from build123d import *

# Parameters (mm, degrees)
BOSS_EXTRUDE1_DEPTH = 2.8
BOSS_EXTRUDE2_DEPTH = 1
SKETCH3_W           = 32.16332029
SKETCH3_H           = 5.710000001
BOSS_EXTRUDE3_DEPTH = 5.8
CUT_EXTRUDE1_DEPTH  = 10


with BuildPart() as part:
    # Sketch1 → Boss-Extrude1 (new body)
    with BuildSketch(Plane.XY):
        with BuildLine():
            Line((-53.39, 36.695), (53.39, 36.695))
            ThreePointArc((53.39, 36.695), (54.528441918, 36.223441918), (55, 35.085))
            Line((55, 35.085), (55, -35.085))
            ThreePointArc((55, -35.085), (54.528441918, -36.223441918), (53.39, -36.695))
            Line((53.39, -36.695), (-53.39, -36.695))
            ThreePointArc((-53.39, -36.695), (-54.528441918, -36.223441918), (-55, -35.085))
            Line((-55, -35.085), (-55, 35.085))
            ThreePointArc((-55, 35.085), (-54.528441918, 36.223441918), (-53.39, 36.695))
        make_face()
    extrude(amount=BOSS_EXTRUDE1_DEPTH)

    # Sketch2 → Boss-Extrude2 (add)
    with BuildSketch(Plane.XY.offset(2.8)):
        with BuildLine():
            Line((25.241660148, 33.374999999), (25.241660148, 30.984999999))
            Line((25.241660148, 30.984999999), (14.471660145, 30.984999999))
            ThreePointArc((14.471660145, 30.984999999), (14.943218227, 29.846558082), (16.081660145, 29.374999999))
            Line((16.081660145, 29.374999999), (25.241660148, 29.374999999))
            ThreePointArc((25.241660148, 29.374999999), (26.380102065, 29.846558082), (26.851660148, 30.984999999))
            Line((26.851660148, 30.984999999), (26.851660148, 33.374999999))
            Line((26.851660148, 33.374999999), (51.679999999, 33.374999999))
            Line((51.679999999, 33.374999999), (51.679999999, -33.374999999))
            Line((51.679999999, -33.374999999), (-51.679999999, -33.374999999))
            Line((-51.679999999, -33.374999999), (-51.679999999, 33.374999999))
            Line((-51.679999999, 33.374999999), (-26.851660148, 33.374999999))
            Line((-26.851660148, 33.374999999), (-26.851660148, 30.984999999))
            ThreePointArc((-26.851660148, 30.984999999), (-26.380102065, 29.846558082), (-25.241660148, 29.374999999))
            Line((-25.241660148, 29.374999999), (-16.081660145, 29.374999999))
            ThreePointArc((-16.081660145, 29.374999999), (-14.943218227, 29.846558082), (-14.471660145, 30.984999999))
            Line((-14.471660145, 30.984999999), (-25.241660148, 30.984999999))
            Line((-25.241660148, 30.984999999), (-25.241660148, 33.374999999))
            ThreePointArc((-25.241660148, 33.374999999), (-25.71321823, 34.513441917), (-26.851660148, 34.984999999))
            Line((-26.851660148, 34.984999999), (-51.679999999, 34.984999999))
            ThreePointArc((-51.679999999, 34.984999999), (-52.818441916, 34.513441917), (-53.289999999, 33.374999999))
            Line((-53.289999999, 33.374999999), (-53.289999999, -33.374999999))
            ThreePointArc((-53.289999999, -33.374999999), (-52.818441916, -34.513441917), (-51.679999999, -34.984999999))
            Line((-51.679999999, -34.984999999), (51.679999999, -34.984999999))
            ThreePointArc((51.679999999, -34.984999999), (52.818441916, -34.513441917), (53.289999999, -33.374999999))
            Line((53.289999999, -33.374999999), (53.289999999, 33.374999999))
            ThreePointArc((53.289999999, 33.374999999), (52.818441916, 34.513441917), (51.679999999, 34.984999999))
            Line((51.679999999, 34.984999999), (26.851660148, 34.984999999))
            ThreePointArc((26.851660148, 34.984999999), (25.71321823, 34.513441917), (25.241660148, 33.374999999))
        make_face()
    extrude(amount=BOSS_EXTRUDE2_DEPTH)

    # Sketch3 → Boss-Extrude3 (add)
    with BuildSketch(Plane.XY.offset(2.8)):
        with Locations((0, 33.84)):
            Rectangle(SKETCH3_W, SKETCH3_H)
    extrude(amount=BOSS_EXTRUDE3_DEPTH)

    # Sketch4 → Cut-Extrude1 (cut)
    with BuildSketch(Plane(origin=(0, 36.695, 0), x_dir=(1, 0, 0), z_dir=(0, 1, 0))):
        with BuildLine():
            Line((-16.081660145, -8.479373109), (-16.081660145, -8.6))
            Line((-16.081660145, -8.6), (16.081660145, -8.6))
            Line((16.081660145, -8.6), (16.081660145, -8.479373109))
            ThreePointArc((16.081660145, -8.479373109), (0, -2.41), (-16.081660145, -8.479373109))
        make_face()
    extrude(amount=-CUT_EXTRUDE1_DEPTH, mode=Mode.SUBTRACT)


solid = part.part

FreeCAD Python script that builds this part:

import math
import FreeCAD as App
import Part
import Sketcher
from FreeCAD import Vector


def add_polygon(sketch, points):
    """Adds a closed chain of lines whose ends are joined by coincident constraints."""
    first, n = sketch.GeometryCount, len(points)
    for a, b in zip(points, points[1:] + points[:1]):
        sketch.addGeometry(Part.LineSegment(App.Vector(*a, 0), App.Vector(*b, 0)), False)
    for i in range(n):
        sketch.addConstraint(Sketcher.Constraint("Coincident", first + i, 2, first + (i + 1) % n, 1))

doc = App.newDocument("Part")
params = doc.addObject("Spreadsheet::Sheet", "Params")
for row, (alias, value) in enumerate([
    ("sketch1_radius", "1.61 mm"),
    ("sketch1_height", "70.17 mm"),
    ("pad1_length", "2.8 mm"),
    ("sketch2_radius", "1.61 mm"),
    ("sketch2_width", "10.77 mm"),
    ("sketch2_width2", "103.36 mm"),
    ("sketch2_height", "66.75 mm"),
    ("pad2_length", "1 mm"),
    ("sketch3_height", "5.71 mm"),
    ("pad3_length", "5.8 mm"),
    ("sketch4_radius", "24.34 mm"),
    ("pocket1_length", "10 mm"),
], start=1):
    params.set(f"A{row}", alias)
    params.set(f"B{row}", "=" + value)
    params.setAlias(f"B{row}", alias)

body = doc.addObject("PartDesign::Body", "Body")

sketch1 = body.newObject("Sketcher::SketchObject", "Sketch")
sketch1.AttachmentSupport = (doc.getObject("XY_Plane"), [""])
sketch1.MapMode = "FlatFace"
sketch1.addGeometry(Part.LineSegment(Vector(53.4, 36.7, 0), Vector(-53.4, 36.7, 0)), False)
sketch1.addGeometry(Part.ArcOfCircle(Part.Circle(Vector(-53.4, 35.1, 0), Vector(0, 0, 1), 1.6), math.radians(90), math.radians(180)), False)
sketch1.addGeometry(Part.LineSegment(Vector(-55, 35.1, 0), Vector(-55, -35.1, 0)), False)
sketch1.addGeometry(Part.ArcOfCircle(Part.Circle(Vector(-53.4, -35.1, 0), Vector(0, 0, 1), 1.6), math.radians(180), math.radians(270)), False)
sketch1.addGeometry(Part.LineSegment(Vector(-53.4, -36.7, 0), Vector(53.4, -36.7, 0)), False)
sketch1.addGeometry(Part.ArcOfCircle(Part.Circle(Vector(53.4, -35.1, 0), Vector(0, 0, 1), 1.6), math.radians(-90), math.radians(0)), False)
sketch1.addGeometry(Part.LineSegment(Vector(55, -35.1, 0), Vector(55, 35.1, 0)), False)
sketch1.addGeometry(Part.ArcOfCircle(Part.Circle(Vector(53.4, 35.1, 0), Vector(0, 0, 1), 1.6), math.radians(0), math.radians(90)), False)
sketch1.addConstraint(Sketcher.Constraint("Tangent", 0, 2, 1, 1))
sketch1.addConstraint(Sketcher.Constraint("Tangent", 1, 2, 2, 1))
sketch1.addConstraint(Sketcher.Constraint("Tangent", 2, 2, 3, 1))
sketch1.addConstraint(Sketcher.Constraint("Tangent", 3, 2, 4, 1))
sketch1.addConstraint(Sketcher.Constraint("Tangent", 4, 2, 5, 1))
sketch1.addConstraint(Sketcher.Constraint("Tangent", 5, 2, 6, 1))
sketch1.addConstraint(Sketcher.Constraint("Tangent", 6, 2, 7, 1))
sketch1.addConstraint(Sketcher.Constraint("Tangent", 7, 2, 0, 1))
sketch1.addConstraint(Sketcher.Constraint("Horizontal", 0))
sketch1.addConstraint(Sketcher.Constraint("Vertical", 2))
sketch1.addConstraint(Sketcher.Constraint("Horizontal", 4))
sketch1.addConstraint(Sketcher.Constraint("Vertical", 6))
sketch1.addConstraint(Sketcher.Constraint("Equal", 1, 3))
sketch1.addConstraint(Sketcher.Constraint("Equal", 3, 5))
sketch1.addConstraint(Sketcher.Constraint("Equal", 5, 7))
sketch1.addConstraint(Sketcher.Constraint("Symmetric", 1, 3, 5, 3, -1, 1))
sketch1.addConstraint(Sketcher.Constraint("Radius", 1, 1.61))
sketch1.addConstraint(Sketcher.Constraint("DistanceX", 1, 2, -1, 1, 55.0))
sketch1.addConstraint(Sketcher.Constraint("DistanceY", 2, 2, 2, 1, 70.17))
sketch1.setExpression("Constraints[16]", "Params.sketch1_radius")
sketch1.setExpression("Constraints[18]", "Params.sketch1_height")
pad1 = body.newObject("PartDesign::Pad", "Pad")
pad1.Profile = sketch1
pad1.setExpression("Length", "Params.pad1_length")

sketch2 = body.newObject("Sketcher::SketchObject", "Sketch001")
sketch2.AttachmentSupport = (doc.getObject("XY_Plane"), [""])
sketch2.MapMode = "FlatFace"
sketch2.AttachmentOffset = App.Placement(Vector(0, 0, 2.8), App.Rotation())
sketch2.addGeometry(Part.LineSegment(Vector(25.2, 33.4, 0), Vector(25.2, 31, 0)), False)
sketch2.addGeometry(Part.LineSegment(Vector(25.2, 31, 0), Vector(14.5, 31, 0)), False)
sketch2.addGeometry(Part.ArcOfCircle(Part.Circle(Vector(16.1, 31, 0), Vector(0, 0, 1), 1.6), math.radians(-180), math.radians(-90)), False)
sketch2.addGeometry(Part.LineSegment(Vector(16.1, 29.4, 0), Vector(25.2, 29.4, 0)), False)
sketch2.addGeometry(Part.ArcOfCircle(Part.Circle(Vector(25.2, 31, 0), Vector(0, 0, 1), 1.6), math.radians(-90), math.radians(0)), False)
sketch2.addGeometry(Part.LineSegment(Vector(26.9, 31, 0), Vector(26.9, 33.4, 0)), False)
sketch2.addGeometry(Part.LineSegment(Vector(26.9, 33.4, 0), Vector(51.7, 33.4, 0)), False)
sketch2.addGeometry(Part.LineSegment(Vector(51.7, 33.4, 0), Vector(51.7, -33.4, 0)), False)
sketch2.addGeometry(Part.LineSegment(Vector(51.7, -33.4, 0), Vector(-51.7, -33.4, 0)), False)
sketch2.addGeometry(Part.LineSegment(Vector(-51.7, -33.4, 0), Vector(-51.7, 33.4, 0)), False)
sketch2.addGeometry(Part.LineSegment(Vector(-51.7, 33.4, 0), Vector(-26.9, 33.4, 0)), False)
sketch2.addGeometry(Part.LineSegment(Vector(-26.9, 33.4, 0), Vector(-26.9, 31, 0)), False)
sketch2.addGeometry(Part.ArcOfCircle(Part.Circle(Vector(-25.2, 31, 0), Vector(0, 0, 1), 1.6), math.radians(-180), math.radians(-90)), False)
sketch2.addGeometry(Part.LineSegment(Vector(-25.2, 29.4, 0), Vector(-16.1, 29.4, 0)), False)
sketch2.addGeometry(Part.ArcOfCircle(Part.Circle(Vector(-16.1, 31, 0), Vector(0, 0, 1), 1.6), math.radians(-90), math.radians(0)), False)
sketch2.addGeometry(Part.LineSegment(Vector(-14.5, 31, 0), Vector(-25.2, 31, 0)), False)
sketch2.addGeometry(Part.LineSegment(Vector(-25.2, 31, 0), Vector(-25.2, 33.4, 0)), False)
sketch2.addGeometry(Part.ArcOfCircle(Part.Circle(Vector(-26.9, 33.4, 0), Vector(0, 0, 1), 1.6), math.radians(0), math.radians(90)), False)
sketch2.addGeometry(Part.LineSegment(Vector(-26.9, 35, 0), Vector(-51.7, 35, 0)), False)
sketch2.addGeometry(Part.ArcOfCircle(Part.Circle(Vector(-51.7, 33.4, 0), Vector(0, 0, 1), 1.6), math.radians(90), math.radians(180)), False)
sketch2.addGeometry(Part.LineSegment(Vector(-53.3, 33.4, 0), Vector(-53.3, -33.4, 0)), False)
sketch2.addGeometry(Part.ArcOfCircle(Part.Circle(Vector(-51.7, -33.4, 0), Vector(0, 0, 1), 1.6), math.radians(-180), math.radians(-90)), False)
sketch2.addGeometry(Part.LineSegment(Vector(-51.7, -35, 0), Vector(51.7, -35, 0)), False)
sketch2.addGeometry(Part.ArcOfCircle(Part.Circle(Vector(51.7, -33.4, 0), Vector(0, 0, 1), 1.6), math.radians(-90), math.radians(0)), False)
sketch2.addGeometry(Part.LineSegment(Vector(53.3, -33.4, 0), Vector(53.3, 33.4, 0)), False)
sketch2.addGeometry(Part.ArcOfCircle(Part.Circle(Vector(51.7, 33.4, 0), Vector(0, 0, 1), 1.6), math.radians(0), math.radians(90)), False)
sketch2.addGeometry(Part.LineSegment(Vector(51.7, 35, 0), Vector(26.9, 35, 0)), False)
sketch2.addGeometry(Part.ArcOfCircle(Part.Circle(Vector(26.9, 33.4, 0), Vector(0, 0, 1), 1.6), math.radians(90), math.radians(180)), False)
sketch2.addConstraint(Sketcher.Constraint("Coincident", 0, 2, 1, 1))
sketch2.addConstraint(Sketcher.Constraint("Coincident", 1, 2, 2, 1))
sketch2.addConstraint(Sketcher.Constraint("Tangent", 2, 2, 3, 1))
sketch2.addConstraint(Sketcher.Constraint("Tangent", 3, 2, 4, 1))
sketch2.addConstraint(Sketcher.Constraint("Tangent", 4, 2, 5, 1))
sketch2.addConstraint(Sketcher.Constraint("Coincident", 5, 2, 6, 1))
sketch2.addConstraint(Sketcher.Constraint("Coincident", 6, 2, 7, 1))
sketch2.addConstraint(Sketcher.Constraint("Coincident", 7, 2, 8, 1))
sketch2.addConstraint(Sketcher.Constraint("Coincident", 8, 2, 9, 1))
sketch2.addConstraint(Sketcher.Constraint("Coincident", 9, 2, 10, 1))
sketch2.addConstraint(Sketcher.Constraint("Coincident", 10, 2, 11, 1))
sketch2.addConstraint(Sketcher.Constraint("Tangent", 11, 2, 12, 1))
sketch2.addConstraint(Sketcher.Constraint("Tangent", 12, 2, 13, 1))
sketch2.addConstraint(Sketcher.Constraint("Tangent", 13, 2, 14, 1))
sketch2.addConstraint(Sketcher.Constraint("Coincident", 14, 2, 15, 1))
sketch2.addConstraint(Sketcher.Constraint("Coincident", 15, 2, 16, 1))
sketch2.addConstraint(Sketcher.Constraint("Tangent", 16, 2, 17, 1))
sketch2.addConstraint(Sketcher.Constraint("Tangent", 17, 2, 18, 1))
sketch2.addConstraint(Sketcher.Constraint("Tangent", 18, 2, 19, 1))
sketch2.addConstraint(Sketcher.Constraint("Tangent", 19, 2, 20, 1))
sketch2.addConstraint(Sketcher.Constraint("Tangent", 20, 2, 21, 1))
sketch2.addConstraint(Sketcher.Constraint("Tangent", 21, 2, 22, 1))
sketch2.addConstraint(Sketcher.Constraint("Tangent", 22, 2, 23, 1))
sketch2.addConstraint(Sketcher.Constraint("Tangent", 23, 2, 24, 1))
sketch2.addConstraint(Sketcher.Constraint("Tangent", 24, 2, 25, 1))
sketch2.addConstraint(Sketcher.Constraint("Tangent", 25, 2, 26, 1))
sketch2.addConstraint(Sketcher.Constraint("Tangent", 26, 2, 27, 1))
sketch2.addConstraint(Sketcher.Constraint("Tangent", 27, 2, 0, 1))
sketch2.addConstraint(Sketcher.Constraint("Vertical", 0))
sketch2.addConstraint(Sketcher.Constraint("Horizontal", 1))
sketch2.addConstraint(Sketcher.Constraint("Horizontal", 3))
sketch2.addConstraint(Sketcher.Constraint("Vertical", 5))
sketch2.addConstraint(Sketcher.Constraint("Horizontal", 6))
sketch2.addConstraint(Sketcher.Constraint("Vertical", 7))
sketch2.addConstraint(Sketcher.Constraint("Horizontal", 8))
sketch2.addConstraint(Sketcher.Constraint("Vertical", 9))
sketch2.addConstraint(Sketcher.Constraint("Horizontal", 10))
sketch2.addConstraint(Sketcher.Constraint("Vertical", 11))
sketch2.addConstraint(Sketcher.Constraint("Horizontal", 13))
sketch2.addConstraint(Sketcher.Constraint("Horizontal", 15))
sketch2.addConstraint(Sketcher.Constraint("Vertical", 16))
sketch2.addConstraint(Sketcher.Constraint("Horizontal", 18))
sketch2.addConstraint(Sketcher.Constraint("Vertical", 20))
sketch2.addConstraint(Sketcher.Constraint("Horizontal", 22))
sketch2.addConstraint(Sketcher.Constraint("Vertical", 24))
sketch2.addConstraint(Sketcher.Constraint("Horizontal", 26))
sketch2.addConstraint(Sketcher.Constraint("Coincident", 0, 2, 4, 3))
sketch2.addConstraint(Sketcher.Constraint("Coincident", 5, 2, 27, 3))
sketch2.addConstraint(Sketcher.Constraint("Coincident", 6, 2, 25, 3))
sketch2.addConstraint(Sketcher.Constraint("Coincident", 7, 2, 23, 3))
sketch2.addConstraint(Sketcher.Constraint("Coincident", 8, 2, 21, 3))
sketch2.addConstraint(Sketcher.Constraint("Coincident", 9, 2, 19, 3))
sketch2.addConstraint(Sketcher.Constraint("Coincident", 10, 2, 17, 3))
sketch2.addConstraint(Sketcher.Constraint("Coincident", 15, 2, 12, 3))
sketch2.addConstraint(Sketcher.Constraint("Equal", 2, 4))
sketch2.addConstraint(Sketcher.Constraint("Equal", 12, 14))
sketch2.addConstraint(Sketcher.Constraint("Symmetric", 19, 3, 23, 3, -1, 1))
sketch2.addConstraint(Sketcher.Constraint("Symmetric", 4, 3, 12, 3, -2))
sketch2.addConstraint(Sketcher.Constraint("Horizontal", 19, 3, 25, 3))
sketch2.addConstraint(Sketcher.Constraint("Equal", 3, 13))
sketch2.addConstraint(Sketcher.Constraint("Radius", 2, 1.61))
sketch2.addConstraint(Sketcher.Constraint("DistanceY", 2, 2, 27, 3, 4.0))
sketch2.addConstraint(Sketcher.Constraint("DistanceX", 1, 2, 1, 1, 10.77))
sketch2.addConstraint(Sketcher.Constraint("DistanceX", 8, 2, 8, 1, 103.36))
sketch2.addConstraint(Sketcher.Constraint("DistanceY", 7, 2, 7, 1, 66.75))
sketch2.addConstraint(Sketcher.Constraint("DistanceX", 6, 1, 6, 2, 24.82834))
sketch2.setExpression("Constraints[60]", "Params.sketch2_radius")
sketch2.setExpression("Constraints[62]", "Params.sketch2_width")
sketch2.setExpression("Constraints[63]", "Params.sketch2_width2")
sketch2.setExpression("Constraints[64]", "Params.sketch2_height")
pad2 = body.newObject("PartDesign::Pad", "Pad001")
pad2.Profile = sketch2
pad2.setExpression("Length", "Params.pad2_length")

sketch3 = body.newObject("Sketcher::SketchObject", "Sketch002")
sketch3.AttachmentSupport = (doc.getObject("XY_Plane"), [""])
sketch3.MapMode = "FlatFace"
sketch3.AttachmentOffset = App.Placement(Vector(0, 0, 2.8), App.Rotation())
add_polygon(sketch3, [(-16, 37), (-16, 31), (16, 31), (16, 37)])
sketch3.addConstraint(Sketcher.Constraint("Vertical", 0))
sketch3.addConstraint(Sketcher.Constraint("Horizontal", 1))
sketch3.addConstraint(Sketcher.Constraint("Vertical", 2))
sketch3.addConstraint(Sketcher.Constraint("Horizontal", 3))
sketch3.addConstraint(Sketcher.Constraint("DistanceY", 0, 2, 0, 1, 5.71))
sketch3.addConstraint(Sketcher.Constraint("DistanceY", -1, 1, 0, 2, 30.985))
sketch3.addConstraint(Sketcher.Constraint("DistanceX", 1, 1, 1, 2, 32.16332))
sketch3.addConstraint(Sketcher.Constraint("DistanceX", 0, 2, -1, 1, 16.08166))
sketch3.setExpression("Constraints[8]", "Params.sketch3_height")
pad3 = body.newObject("PartDesign::Pad", "Pad002")
pad3.Profile = sketch3
pad3.setExpression("Length", "Params.pad3_length")

sketch4 = body.newObject("Sketcher::SketchObject", "Sketch003")
sketch4.AttachmentSupport = (doc.getObject("XZ_Plane"), [""])
sketch4.MapMode = "FlatFace"
sketch4.AttachmentOffset = App.Placement(Vector(0, 0, -36.695), App.Rotation())
sketch4.addGeometry(Part.LineSegment(Vector(-16.08, 8.48, 0), Vector(-16.08, 8.6, 0)), False)
sketch4.addGeometry(Part.LineSegment(Vector(-16.08, 8.6, 0), Vector(16.08, 8.6, 0)), False)
sketch4.addGeometry(Part.LineSegment(Vector(16.08, 8.6, 0), Vector(16.08, 8.48, 0)), False)
sketch4.addGeometry(Part.ArcOfCircle(Part.Circle(Vector(0, 26.75, 0), Vector(0, 0, 1), 24.34), math.radians(-131), math.radians(-49)), False)
sketch4.addConstraint(Sketcher.Constraint("Coincident", 0, 2, 1, 1))
sketch4.addConstraint(Sketcher.Constraint("Coincident", 1, 2, 2, 1))
sketch4.addConstraint(Sketcher.Constraint("Coincident", 2, 2, 3, 2))
sketch4.addConstraint(Sketcher.Constraint("Coincident", 3, 1, 0, 1))
sketch4.addConstraint(Sketcher.Constraint("Vertical", 0))
sketch4.addConstraint(Sketcher.Constraint("Horizontal", 1))
sketch4.addConstraint(Sketcher.Constraint("Vertical", 2))
sketch4.addConstraint(Sketcher.Constraint("Symmetric", 2, 2, 3, 1, -2))
sketch4.addConstraint(Sketcher.Constraint("Radius", 3, 24.34))
sketch4.addConstraint(Sketcher.Constraint("DistanceY", -1, 1, 0, 2, 8.6))
sketch4.addConstraint(Sketcher.Constraint("DistanceY", -1, 1, 3, 3, 26.75))
sketch4.addConstraint(Sketcher.Constraint("DistanceX", 1, 1, 1, 2, 32.16332))
sketch4.setExpression("Constraints[8]", "Params.sketch4_radius")
pocket1 = body.newObject("PartDesign::Pocket", "Pocket")
pocket1.Profile = sketch4
pocket1.setExpression("Length", "Params.pocket1_length")
pocket1.Reversed = True

doc.recompute()
